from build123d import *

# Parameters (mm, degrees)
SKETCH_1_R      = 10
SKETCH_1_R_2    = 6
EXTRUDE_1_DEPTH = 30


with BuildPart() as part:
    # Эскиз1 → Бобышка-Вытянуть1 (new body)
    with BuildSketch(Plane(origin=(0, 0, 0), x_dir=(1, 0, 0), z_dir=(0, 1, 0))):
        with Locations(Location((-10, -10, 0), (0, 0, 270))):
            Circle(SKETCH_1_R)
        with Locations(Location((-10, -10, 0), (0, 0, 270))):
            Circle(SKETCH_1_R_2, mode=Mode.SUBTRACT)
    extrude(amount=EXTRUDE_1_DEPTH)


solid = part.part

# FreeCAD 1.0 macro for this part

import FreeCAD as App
import Part
import Sketcher

doc = App.newDocument("Part")
body = doc.addObject("PartDesign::Body", "Body")

# Sketch on XZ plane
sketch1 = body.newObject("Sketcher::SketchObject", "Sketch")
sketch1.AttachmentSupport = (doc.getObject("XZ_Plane"), [""])
sketch1.MapMode = "FlatFace"
sketch1.addGeometry(Part.Circle(App.Vector(-10, 10, 0), App.Vector(0, 0, 1), 10), False)
sketch1.addGeometry(Part.Circle(App.Vector(-10, 10, 0), App.Vector(0, 0, 1), 6), False)
sketch1.addConstraint(Sketcher.Constraint("Coincident", 1, 3, 0, 3))
sketch1.addConstraint(Sketcher.Constraint("Diameter", 0, 20.0))
sketch1.addConstraint(Sketcher.Constraint("Diameter", 1, 12.0))
sketch1.addConstraint(Sketcher.Constraint("DistanceX", 0, 3, -1, 1, 10.0))
sketch1.addConstraint(Sketcher.Constraint("DistanceY", -1, 1, 0, 3, 10.0))
pad1 = body.newObject("PartDesign::Pad", "Pad")
pad1.Profile = sketch1
pad1.Length = 30
pad1.Reversed = True

doc.recompute()
